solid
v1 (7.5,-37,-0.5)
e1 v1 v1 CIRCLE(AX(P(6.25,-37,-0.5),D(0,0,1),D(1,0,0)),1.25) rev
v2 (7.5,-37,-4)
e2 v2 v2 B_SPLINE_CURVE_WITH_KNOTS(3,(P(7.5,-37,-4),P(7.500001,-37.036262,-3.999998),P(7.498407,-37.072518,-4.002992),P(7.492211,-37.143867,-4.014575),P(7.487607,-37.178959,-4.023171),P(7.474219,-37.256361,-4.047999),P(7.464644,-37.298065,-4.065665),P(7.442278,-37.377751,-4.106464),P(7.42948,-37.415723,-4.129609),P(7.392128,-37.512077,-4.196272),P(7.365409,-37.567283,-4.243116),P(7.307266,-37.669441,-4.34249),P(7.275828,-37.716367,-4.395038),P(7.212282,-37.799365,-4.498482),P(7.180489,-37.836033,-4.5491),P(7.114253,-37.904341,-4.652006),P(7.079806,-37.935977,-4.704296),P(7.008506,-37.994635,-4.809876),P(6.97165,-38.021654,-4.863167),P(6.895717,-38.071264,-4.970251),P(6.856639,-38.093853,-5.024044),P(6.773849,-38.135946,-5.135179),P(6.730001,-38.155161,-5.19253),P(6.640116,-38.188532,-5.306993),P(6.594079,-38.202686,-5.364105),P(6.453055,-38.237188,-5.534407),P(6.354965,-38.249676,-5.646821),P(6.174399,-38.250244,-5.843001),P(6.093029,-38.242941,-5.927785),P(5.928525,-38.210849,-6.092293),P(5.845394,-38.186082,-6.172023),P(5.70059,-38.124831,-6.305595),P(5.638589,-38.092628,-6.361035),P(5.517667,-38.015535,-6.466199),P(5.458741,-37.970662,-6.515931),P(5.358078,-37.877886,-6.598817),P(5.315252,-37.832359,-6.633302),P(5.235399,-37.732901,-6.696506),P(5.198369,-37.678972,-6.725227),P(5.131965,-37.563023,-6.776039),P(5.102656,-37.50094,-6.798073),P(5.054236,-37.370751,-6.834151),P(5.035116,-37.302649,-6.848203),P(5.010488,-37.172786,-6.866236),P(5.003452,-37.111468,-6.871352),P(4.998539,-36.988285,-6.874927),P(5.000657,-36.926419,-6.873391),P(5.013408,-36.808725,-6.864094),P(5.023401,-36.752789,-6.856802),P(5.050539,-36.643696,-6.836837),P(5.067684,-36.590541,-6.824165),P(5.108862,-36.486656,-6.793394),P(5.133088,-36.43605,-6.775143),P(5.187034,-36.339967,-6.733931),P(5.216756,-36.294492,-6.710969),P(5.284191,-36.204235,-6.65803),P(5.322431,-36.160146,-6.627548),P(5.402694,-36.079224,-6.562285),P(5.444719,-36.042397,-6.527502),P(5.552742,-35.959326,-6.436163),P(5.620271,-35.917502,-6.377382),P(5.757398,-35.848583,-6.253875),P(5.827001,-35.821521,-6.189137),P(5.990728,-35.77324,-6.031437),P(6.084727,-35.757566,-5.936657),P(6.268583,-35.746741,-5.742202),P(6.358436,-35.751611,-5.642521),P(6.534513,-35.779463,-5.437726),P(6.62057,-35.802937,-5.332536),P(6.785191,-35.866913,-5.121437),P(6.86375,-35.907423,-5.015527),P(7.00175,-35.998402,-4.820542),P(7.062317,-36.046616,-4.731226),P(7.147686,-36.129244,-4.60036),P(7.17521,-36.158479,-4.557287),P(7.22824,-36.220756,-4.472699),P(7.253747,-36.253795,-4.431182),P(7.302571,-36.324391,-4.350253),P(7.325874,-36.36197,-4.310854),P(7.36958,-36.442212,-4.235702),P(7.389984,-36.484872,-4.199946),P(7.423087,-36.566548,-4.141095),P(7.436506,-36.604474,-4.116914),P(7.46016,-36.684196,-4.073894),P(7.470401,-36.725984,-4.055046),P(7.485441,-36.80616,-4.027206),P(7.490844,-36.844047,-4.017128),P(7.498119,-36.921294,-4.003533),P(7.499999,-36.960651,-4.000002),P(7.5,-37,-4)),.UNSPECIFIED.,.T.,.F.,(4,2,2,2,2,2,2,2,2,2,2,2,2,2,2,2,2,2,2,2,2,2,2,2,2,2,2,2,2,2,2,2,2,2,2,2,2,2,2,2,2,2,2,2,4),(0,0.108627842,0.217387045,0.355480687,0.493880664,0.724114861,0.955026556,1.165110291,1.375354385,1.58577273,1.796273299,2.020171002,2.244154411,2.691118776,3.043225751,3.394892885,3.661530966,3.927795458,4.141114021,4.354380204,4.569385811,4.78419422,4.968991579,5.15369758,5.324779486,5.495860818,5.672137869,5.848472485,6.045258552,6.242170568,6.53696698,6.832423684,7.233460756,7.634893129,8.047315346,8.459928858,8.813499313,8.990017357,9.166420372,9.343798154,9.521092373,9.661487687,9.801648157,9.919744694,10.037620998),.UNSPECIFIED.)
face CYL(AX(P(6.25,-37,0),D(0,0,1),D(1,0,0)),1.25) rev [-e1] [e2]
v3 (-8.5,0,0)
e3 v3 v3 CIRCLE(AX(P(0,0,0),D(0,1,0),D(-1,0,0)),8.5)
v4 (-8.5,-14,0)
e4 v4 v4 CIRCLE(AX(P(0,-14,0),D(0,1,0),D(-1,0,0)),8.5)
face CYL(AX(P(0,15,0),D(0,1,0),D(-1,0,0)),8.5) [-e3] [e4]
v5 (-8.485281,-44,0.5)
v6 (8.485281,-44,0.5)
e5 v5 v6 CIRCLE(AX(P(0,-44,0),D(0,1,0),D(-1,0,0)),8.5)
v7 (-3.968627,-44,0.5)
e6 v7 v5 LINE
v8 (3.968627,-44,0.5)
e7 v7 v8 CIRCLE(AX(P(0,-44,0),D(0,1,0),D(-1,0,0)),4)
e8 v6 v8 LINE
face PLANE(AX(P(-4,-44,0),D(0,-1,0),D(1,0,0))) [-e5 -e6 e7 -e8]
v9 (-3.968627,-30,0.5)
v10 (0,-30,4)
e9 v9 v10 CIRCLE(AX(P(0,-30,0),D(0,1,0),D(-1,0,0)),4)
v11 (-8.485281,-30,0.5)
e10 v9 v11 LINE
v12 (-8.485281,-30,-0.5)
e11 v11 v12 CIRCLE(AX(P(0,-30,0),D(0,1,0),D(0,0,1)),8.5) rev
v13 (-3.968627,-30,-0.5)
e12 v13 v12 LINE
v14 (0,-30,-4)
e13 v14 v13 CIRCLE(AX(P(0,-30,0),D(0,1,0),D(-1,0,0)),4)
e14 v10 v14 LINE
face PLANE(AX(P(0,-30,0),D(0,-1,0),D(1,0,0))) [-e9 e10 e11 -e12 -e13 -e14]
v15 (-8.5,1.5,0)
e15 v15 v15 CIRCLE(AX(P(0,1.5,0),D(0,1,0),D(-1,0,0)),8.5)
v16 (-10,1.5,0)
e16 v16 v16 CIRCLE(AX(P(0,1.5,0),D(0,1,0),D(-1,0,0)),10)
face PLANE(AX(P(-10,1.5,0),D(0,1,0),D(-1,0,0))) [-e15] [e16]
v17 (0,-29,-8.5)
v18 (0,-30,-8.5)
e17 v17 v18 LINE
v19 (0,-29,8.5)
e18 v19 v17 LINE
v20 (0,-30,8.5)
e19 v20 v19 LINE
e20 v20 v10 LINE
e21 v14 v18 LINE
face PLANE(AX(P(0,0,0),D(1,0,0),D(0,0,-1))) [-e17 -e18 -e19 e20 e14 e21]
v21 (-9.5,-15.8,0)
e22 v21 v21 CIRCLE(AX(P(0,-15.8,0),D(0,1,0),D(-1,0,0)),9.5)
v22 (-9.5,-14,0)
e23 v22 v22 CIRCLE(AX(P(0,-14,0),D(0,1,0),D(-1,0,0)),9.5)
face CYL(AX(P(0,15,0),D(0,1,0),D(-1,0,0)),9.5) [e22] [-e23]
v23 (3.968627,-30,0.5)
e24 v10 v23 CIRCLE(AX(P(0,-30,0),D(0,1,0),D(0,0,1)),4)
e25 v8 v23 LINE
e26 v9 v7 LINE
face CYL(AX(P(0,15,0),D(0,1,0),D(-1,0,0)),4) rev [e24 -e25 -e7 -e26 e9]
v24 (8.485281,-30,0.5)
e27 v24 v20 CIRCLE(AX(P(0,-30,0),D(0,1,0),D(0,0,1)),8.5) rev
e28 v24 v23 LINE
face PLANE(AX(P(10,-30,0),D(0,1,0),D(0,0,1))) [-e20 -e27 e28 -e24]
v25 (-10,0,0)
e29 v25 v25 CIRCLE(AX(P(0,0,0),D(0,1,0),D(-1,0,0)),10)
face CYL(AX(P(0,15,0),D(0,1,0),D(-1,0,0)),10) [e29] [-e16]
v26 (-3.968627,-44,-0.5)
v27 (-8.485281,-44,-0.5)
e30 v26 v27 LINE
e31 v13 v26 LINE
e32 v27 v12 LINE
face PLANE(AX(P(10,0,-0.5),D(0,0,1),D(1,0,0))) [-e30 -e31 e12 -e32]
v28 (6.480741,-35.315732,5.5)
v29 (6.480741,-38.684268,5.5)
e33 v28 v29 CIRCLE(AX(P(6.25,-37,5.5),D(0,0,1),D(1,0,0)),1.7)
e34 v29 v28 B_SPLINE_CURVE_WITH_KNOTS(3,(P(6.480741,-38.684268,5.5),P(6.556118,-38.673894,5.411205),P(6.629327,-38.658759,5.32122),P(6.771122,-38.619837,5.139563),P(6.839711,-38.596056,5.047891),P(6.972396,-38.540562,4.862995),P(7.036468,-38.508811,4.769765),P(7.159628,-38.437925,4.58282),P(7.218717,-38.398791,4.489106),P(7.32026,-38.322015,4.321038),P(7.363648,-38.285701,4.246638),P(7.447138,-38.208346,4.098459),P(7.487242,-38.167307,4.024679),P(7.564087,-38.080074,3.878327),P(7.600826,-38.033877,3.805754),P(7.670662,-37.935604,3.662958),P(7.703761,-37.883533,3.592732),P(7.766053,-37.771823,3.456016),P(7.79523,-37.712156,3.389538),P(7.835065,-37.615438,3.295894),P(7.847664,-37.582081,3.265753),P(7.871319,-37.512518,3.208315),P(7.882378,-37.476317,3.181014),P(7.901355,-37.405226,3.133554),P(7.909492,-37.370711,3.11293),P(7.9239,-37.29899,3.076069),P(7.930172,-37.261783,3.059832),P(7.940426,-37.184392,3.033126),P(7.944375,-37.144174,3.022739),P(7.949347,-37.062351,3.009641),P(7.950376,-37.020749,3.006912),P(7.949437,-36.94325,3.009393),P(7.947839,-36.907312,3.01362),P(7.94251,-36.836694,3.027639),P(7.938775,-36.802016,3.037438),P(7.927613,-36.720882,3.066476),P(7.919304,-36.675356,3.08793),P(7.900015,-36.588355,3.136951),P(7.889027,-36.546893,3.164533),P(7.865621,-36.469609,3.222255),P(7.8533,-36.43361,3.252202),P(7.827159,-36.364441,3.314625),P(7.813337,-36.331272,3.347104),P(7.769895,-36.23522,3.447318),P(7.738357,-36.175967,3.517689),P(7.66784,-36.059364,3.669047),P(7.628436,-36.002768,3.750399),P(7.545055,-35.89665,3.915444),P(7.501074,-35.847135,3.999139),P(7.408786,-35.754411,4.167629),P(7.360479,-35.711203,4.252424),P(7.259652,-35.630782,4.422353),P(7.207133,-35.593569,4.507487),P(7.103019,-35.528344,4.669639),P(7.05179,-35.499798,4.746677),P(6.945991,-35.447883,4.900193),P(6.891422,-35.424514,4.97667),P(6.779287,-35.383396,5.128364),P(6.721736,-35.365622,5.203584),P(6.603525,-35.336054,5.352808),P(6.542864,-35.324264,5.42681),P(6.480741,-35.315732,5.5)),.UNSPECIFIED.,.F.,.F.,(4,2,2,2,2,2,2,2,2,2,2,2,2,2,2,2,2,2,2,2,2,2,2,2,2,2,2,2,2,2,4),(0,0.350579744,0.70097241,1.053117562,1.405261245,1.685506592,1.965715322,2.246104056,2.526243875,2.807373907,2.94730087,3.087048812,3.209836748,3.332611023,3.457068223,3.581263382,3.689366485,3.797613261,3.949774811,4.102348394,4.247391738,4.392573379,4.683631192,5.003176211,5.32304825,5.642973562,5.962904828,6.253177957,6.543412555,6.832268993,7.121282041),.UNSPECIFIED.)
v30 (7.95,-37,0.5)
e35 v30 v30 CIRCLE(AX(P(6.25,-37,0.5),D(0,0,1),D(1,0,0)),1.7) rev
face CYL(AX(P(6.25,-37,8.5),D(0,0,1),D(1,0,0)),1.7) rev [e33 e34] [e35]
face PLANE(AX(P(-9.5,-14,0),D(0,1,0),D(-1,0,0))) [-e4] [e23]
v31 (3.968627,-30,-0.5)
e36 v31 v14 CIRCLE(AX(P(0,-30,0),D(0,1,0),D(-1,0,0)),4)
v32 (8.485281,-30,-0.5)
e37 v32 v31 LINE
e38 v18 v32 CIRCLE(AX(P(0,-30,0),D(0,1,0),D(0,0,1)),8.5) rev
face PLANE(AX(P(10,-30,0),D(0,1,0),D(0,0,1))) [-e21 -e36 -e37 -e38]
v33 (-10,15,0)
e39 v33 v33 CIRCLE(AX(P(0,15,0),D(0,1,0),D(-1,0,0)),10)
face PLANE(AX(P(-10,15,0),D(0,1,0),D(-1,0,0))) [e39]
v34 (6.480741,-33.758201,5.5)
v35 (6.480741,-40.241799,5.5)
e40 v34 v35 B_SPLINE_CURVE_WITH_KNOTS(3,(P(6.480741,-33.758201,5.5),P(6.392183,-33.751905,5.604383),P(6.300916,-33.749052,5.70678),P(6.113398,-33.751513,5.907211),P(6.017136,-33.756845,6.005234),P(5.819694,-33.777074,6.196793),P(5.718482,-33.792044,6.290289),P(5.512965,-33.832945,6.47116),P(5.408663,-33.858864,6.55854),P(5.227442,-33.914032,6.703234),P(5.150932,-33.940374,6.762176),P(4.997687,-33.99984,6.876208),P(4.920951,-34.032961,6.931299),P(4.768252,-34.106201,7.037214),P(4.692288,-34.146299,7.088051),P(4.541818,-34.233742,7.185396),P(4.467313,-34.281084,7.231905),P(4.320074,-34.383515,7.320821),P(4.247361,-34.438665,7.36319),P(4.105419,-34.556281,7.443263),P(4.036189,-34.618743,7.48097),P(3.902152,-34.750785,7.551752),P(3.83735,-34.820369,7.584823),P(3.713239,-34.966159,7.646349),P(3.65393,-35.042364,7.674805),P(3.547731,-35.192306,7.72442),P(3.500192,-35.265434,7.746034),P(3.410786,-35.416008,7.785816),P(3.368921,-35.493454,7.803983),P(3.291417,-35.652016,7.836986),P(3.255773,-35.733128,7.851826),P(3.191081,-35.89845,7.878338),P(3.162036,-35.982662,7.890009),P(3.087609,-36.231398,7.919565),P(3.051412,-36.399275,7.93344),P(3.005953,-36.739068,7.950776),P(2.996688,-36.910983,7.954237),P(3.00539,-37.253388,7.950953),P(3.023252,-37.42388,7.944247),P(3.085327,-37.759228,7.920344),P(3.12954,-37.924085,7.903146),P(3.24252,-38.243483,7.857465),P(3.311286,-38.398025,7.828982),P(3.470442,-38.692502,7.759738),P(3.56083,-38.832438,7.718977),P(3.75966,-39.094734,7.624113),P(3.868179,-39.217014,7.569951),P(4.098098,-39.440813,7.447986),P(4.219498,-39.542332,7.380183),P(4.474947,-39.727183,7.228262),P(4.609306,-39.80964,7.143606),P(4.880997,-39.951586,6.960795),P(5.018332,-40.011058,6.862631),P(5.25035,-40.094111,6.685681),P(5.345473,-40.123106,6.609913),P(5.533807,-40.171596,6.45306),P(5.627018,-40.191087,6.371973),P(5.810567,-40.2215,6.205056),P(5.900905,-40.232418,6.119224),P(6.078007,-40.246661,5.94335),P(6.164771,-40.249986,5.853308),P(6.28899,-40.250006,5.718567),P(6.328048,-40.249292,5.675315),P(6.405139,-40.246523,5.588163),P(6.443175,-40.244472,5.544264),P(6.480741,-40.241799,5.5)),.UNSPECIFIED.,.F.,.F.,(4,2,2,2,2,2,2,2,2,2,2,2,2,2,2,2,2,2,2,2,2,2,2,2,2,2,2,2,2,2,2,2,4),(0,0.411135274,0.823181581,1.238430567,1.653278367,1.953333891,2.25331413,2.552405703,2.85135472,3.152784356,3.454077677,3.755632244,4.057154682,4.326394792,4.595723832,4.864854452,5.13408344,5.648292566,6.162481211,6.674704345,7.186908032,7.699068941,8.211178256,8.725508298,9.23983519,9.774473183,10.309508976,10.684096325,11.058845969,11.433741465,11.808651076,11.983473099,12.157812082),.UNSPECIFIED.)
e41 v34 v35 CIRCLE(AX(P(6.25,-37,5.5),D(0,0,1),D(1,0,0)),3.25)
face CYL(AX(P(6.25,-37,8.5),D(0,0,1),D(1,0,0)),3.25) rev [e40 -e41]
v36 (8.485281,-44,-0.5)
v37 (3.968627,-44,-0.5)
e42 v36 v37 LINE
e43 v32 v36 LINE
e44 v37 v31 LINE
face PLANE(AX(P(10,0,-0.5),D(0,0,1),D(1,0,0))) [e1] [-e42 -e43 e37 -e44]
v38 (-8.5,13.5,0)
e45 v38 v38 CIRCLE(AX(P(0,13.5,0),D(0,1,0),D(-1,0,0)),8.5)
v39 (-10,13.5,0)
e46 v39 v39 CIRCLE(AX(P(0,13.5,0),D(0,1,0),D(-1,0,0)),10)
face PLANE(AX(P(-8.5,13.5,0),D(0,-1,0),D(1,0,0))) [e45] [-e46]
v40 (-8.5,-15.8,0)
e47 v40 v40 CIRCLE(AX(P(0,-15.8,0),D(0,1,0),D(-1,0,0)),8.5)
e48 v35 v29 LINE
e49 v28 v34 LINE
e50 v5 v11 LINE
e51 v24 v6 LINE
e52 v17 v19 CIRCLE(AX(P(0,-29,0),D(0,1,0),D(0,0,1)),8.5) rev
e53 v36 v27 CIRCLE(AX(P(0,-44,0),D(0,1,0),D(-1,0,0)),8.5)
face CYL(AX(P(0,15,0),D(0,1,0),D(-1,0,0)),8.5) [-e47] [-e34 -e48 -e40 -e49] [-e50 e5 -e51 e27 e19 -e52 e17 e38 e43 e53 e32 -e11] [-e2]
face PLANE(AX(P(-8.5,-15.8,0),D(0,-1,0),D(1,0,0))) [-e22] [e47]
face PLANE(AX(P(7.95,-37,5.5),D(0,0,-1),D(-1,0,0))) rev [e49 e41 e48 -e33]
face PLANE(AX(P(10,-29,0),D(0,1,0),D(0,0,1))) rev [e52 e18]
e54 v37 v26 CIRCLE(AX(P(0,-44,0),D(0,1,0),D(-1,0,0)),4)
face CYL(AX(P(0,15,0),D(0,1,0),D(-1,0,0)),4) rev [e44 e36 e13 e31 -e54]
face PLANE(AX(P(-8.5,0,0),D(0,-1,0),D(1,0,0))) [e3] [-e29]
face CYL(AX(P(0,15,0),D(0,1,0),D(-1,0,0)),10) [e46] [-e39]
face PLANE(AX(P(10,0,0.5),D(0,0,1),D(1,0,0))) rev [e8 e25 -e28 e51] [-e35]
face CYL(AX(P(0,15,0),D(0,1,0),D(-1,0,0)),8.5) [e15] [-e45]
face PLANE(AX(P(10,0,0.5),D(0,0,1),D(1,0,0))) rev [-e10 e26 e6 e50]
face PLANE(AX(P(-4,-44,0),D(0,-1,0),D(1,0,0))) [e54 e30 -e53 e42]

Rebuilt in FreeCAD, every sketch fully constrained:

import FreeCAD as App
import Part
import Sketcher
Q = App.Units.Quantity


def add_polygon(sketch, points):
    """Adds a closed chain of lines whose ends are joined by coincident constraints."""
    first, n = sketch.GeometryCount, len(points)
    for a, b in zip(points, points[1:] + points[:1]):
        sketch.addGeometry(Part.LineSegment(App.Vector(*a, 0), App.Vector(*b, 0)), False)
    for i in range(n):
        sketch.addConstraint(Sketcher.Constraint("Coincident", first + i, 2, first + (i + 1) % n, 1))

doc = App.newDocument("Part")
body = doc.addObject("PartDesign::Body", "Body")

# Sketch on XY plane
sketch1 = body.newObject("Sketcher::SketchObject", "Sketch")
sketch1.AttachmentSupport = (doc.getObject("XY_Plane"), [""])
sketch1.MapMode = "FlatFace"
add_polygon(sketch1, [(-8.5, -15.8), (-8.5, -44), (-4, -44), (-4, -30), (0, -30), (0, 15), (-10, 15), (-10, 13.5), (-8.5, 13.5), (-8.5, 1.5), (-10, 1.5), (-10, 0), (-8.5, 0), (-8.5, -14), (-9.5, -14), (-9.5, -15.8)])  # lines 0-15
sketch1.addConstraint(Sketcher.Constraint("Vertical", 0))
sketch1.addConstraint(Sketcher.Constraint("Horizontal", 1))
sketch1.addConstraint(Sketcher.Constraint("Vertical", 2))
sketch1.addConstraint(Sketcher.Constraint("Horizontal", 3))
sketch1.addConstraint(Sketcher.Constraint("Vertical", 4))
sketch1.addConstraint(Sketcher.Constraint("Horizontal", 5))
sketch1.addConstraint(Sketcher.Constraint("Vertical", 6))
sketch1.addConstraint(Sketcher.Constraint("Horizontal", 7))
sketch1.addConstraint(Sketcher.Constraint("Vertical", 8))
sketch1.addConstraint(Sketcher.Constraint("Horizontal", 9))
sketch1.addConstraint(Sketcher.Constraint("Vertical", 10))
sketch1.addConstraint(Sketcher.Constraint("Horizontal", 11))
sketch1.addConstraint(Sketcher.Constraint("Vertical", 12))
sketch1.addConstraint(Sketcher.Constraint("Horizontal", 13))
sketch1.addConstraint(Sketcher.Constraint("Vertical", 14))
sketch1.addConstraint(Sketcher.Constraint("Horizontal", 15))
sketch1.addConstraint(Sketcher.Constraint("PointOnObject", 3, 2, -2))
sketch1.addConstraint(Sketcher.Constraint("PointOnObject", 10, 2, -1))
sketch1.addConstraint(Sketcher.Constraint("Vertical", 0, 2, 7, 2))
sketch1.addConstraint(Sketcher.Constraint("Vertical", 6, 2, 9, 2))
sketch1.addConstraint(Sketcher.Constraint("Vertical", 8, 2, 11, 2))
sketch1.addConstraint(Sketcher.Constraint("Equal", 11, 6))
sketch1.addConstraint(Sketcher.Constraint("Equal", 6, 10))
sketch1.addConstraint(Sketcher.Constraint("Equal", 2, 12))
sketch1.addConstraint(Sketcher.Constraint("DistanceX", 3, 1, 3, 2, Q("4 mm")))
sketch1.addConstraint(Sketcher.Constraint("DistanceX", 5, 2, 5, 1, Q("10 mm")))
sketch1.addConstraint(Sketcher.Constraint("DistanceX", 13, 2, 13, 1, Q("1 mm")))
sketch1.addConstraint(Sketcher.Constraint("DistanceY", 2, 1, 2, 2, Q("14 mm")))
sketch1.addConstraint(Sketcher.Constraint("DistanceY", 4, 1, 4, 2, Q("45 mm")))
sketch1.addConstraint(Sketcher.Constraint("DistanceY", 8, 2, 8, 1, Q("12 mm")))
sketch1.addConstraint(Sketcher.Constraint("DistanceX", 1, 1, 1, 2, Q("4.5 mm")))
sketch1.addConstraint(Sketcher.Constraint("DistanceY", 0, 2, 0, 1, Q("28.2 mm")))
revolution = body.newObject("PartDesign::Revolution", "Revolution")
revolution.Profile = sketch1
revolution.ReferenceAxis = (sketch1, ["V_Axis"])
revolution.Angle = 360

# Sketch on XY plane
sketch2 = body.newObject("Sketcher::SketchObject", "Sketch001")
sketch2.AttachmentSupport = (doc.getObject("XY_Plane"), [""])
sketch2.MapMode = "FlatFace"
sketch2.AttachmentOffset = App.Placement(App.Vector(0, 0, 8.5), App.Rotation())
sketch2.addGeometry(Part.Circle(App.Vector(6.2, -37, 0), App.Vector(0, 0, 1), 1.7), False)
sketch2.addConstraint(Sketcher.Constraint("Diameter", 0, Q("3.4 mm")))
sketch2.addConstraint(Sketcher.Constraint("DistanceY", 0, 3, -1, 1, Q("37 mm")))
sketch2.addConstraint(Sketcher.Constraint("DistanceX", -1, 1, 0, 3, Q("6.25 mm")))
doc.recompute()
hole = body.newObject("PartDesign::Hole", "Hole")
hole.Profile = sketch2
hole.ThreadType = "None"
hole.Diameter = 3.4
hole.DepthType = "Dimension"
hole.Depth = 8.5
hole.DrillPoint = "Flat"
hole.HoleCutType = "Counterbore"
hole.HoleCutDiameter = 6.5
hole.HoleCutDepth = 3

# Sketch on XY plane
sketch3 = body.newObject("Sketcher::SketchObject", "Sketch002")
sketch3.AttachmentSupport = (doc.getObject("XY_Plane"), [""])
sketch3.MapMode = "FlatFace"
sketch3.addGeometry(Part.Circle(App.Vector(6.2, -37, 0), App.Vector(0, 0, 1), 1.2), False)
sketch3.addConstraint(Sketcher.Constraint("Diameter", 0, Q("2.5 mm")))
sketch3.addConstraint(Sketcher.Constraint("DistanceY", 0, 3, -1, 1, Q("37 mm")))
sketch3.addConstraint(Sketcher.Constraint("DistanceX", -1, 1, 0, 3, Q("6.25 mm")))
doc.recompute()
hole2 = body.newObject("PartDesign::Hole", "Hole001")
hole2.Profile = sketch3
hole2.ThreadType = "None"
hole2.Diameter = 2.5
hole2.DepthType = "ThroughAll"

# Sketch on YZ plane
sketch4 = body.newObject("Sketcher::SketchObject", "Sketch003")
sketch4.AttachmentSupport = (doc.getObject("YZ_Plane"), [""])
sketch4.MapMode = "FlatFace"
add_polygon(sketch4, [(-30, 0.5), (-45, 0.5), (-45, -0.5), (-30, -0.5)])  # lines 0-3
sketch4.addConstraint(Sketcher.Constraint("Horizontal", 0))
sketch4.addConstraint(Sketcher.Constraint("Vertical", 1))
sketch4.addConstraint(Sketcher.Constraint("Horizontal", 2))
sketch4.addConstraint(Sketcher.Constraint("Vertical", 3))
sketch4.addConstraint(Sketcher.Constraint("DistanceX", 0, 2, 0, 1, Q("15 mm")))
sketch4.addConstraint(Sketcher.Constraint("DistanceY", 1, 2, 1, 1, Q("1 mm")))
sketch4.addConstraint(Sketcher.Constraint("DistanceX", 0, 2, -1, 1, Q("45 mm")))
sketch4.addConstraint(Sketcher.Constraint("DistanceY", -1, 1, 0, 2, Q("0.5 mm")))
pocket1 = body.newObject("PartDesign::Pocket", "Pocket")
pocket1.Profile = sketch4
pocket1.Type = "ThroughAll"
pocket1.Midplane = True

# Sketch on YZ plane
sketch5 = body.newObject("Sketcher::SketchObject", "Sketch004")
sketch5.AttachmentSupport = (doc.getObject("YZ_Plane"), [""])
sketch5.MapMode = "FlatFace"
add_polygon(sketch5, [(-30, -9.5), (-29, -9.5), (-29, 9.5), (-30, 9.5)])  # lines 0-3
sketch5.addConstraint(Sketcher.Constraint("Horizontal", 0))
sketch5.addConstraint(Sketcher.Constraint("Vertical", 1))
sketch5.addConstraint(Sketcher.Constraint("Horizontal", 2))
sketch5.addConstraint(Sketcher.Constraint("Vertical", 3))
sketch5.addConstraint(Sketcher.Constraint("DistanceX", 0, 1, 0, 2, Q("1 mm")))
sketch5.addConstraint(Sketcher.Constraint("DistanceY", 1, 1, 1, 2, Q("19 mm")))
sketch5.addConstraint(Sketcher.Constraint("DistanceX", 0, 2, -1, 1, Q("29 mm")))
sketch5.addConstraint(Sketcher.Constraint("DistanceY", 0, 2, -1, 1, Q("9.5 mm")))
pocket2 = body.newObject("PartDesign::Pocket", "Pocket001")
pocket2.Profile = sketch5
pocket2.Length = 10
pocket2.Reversed = True

doc.recompute()
